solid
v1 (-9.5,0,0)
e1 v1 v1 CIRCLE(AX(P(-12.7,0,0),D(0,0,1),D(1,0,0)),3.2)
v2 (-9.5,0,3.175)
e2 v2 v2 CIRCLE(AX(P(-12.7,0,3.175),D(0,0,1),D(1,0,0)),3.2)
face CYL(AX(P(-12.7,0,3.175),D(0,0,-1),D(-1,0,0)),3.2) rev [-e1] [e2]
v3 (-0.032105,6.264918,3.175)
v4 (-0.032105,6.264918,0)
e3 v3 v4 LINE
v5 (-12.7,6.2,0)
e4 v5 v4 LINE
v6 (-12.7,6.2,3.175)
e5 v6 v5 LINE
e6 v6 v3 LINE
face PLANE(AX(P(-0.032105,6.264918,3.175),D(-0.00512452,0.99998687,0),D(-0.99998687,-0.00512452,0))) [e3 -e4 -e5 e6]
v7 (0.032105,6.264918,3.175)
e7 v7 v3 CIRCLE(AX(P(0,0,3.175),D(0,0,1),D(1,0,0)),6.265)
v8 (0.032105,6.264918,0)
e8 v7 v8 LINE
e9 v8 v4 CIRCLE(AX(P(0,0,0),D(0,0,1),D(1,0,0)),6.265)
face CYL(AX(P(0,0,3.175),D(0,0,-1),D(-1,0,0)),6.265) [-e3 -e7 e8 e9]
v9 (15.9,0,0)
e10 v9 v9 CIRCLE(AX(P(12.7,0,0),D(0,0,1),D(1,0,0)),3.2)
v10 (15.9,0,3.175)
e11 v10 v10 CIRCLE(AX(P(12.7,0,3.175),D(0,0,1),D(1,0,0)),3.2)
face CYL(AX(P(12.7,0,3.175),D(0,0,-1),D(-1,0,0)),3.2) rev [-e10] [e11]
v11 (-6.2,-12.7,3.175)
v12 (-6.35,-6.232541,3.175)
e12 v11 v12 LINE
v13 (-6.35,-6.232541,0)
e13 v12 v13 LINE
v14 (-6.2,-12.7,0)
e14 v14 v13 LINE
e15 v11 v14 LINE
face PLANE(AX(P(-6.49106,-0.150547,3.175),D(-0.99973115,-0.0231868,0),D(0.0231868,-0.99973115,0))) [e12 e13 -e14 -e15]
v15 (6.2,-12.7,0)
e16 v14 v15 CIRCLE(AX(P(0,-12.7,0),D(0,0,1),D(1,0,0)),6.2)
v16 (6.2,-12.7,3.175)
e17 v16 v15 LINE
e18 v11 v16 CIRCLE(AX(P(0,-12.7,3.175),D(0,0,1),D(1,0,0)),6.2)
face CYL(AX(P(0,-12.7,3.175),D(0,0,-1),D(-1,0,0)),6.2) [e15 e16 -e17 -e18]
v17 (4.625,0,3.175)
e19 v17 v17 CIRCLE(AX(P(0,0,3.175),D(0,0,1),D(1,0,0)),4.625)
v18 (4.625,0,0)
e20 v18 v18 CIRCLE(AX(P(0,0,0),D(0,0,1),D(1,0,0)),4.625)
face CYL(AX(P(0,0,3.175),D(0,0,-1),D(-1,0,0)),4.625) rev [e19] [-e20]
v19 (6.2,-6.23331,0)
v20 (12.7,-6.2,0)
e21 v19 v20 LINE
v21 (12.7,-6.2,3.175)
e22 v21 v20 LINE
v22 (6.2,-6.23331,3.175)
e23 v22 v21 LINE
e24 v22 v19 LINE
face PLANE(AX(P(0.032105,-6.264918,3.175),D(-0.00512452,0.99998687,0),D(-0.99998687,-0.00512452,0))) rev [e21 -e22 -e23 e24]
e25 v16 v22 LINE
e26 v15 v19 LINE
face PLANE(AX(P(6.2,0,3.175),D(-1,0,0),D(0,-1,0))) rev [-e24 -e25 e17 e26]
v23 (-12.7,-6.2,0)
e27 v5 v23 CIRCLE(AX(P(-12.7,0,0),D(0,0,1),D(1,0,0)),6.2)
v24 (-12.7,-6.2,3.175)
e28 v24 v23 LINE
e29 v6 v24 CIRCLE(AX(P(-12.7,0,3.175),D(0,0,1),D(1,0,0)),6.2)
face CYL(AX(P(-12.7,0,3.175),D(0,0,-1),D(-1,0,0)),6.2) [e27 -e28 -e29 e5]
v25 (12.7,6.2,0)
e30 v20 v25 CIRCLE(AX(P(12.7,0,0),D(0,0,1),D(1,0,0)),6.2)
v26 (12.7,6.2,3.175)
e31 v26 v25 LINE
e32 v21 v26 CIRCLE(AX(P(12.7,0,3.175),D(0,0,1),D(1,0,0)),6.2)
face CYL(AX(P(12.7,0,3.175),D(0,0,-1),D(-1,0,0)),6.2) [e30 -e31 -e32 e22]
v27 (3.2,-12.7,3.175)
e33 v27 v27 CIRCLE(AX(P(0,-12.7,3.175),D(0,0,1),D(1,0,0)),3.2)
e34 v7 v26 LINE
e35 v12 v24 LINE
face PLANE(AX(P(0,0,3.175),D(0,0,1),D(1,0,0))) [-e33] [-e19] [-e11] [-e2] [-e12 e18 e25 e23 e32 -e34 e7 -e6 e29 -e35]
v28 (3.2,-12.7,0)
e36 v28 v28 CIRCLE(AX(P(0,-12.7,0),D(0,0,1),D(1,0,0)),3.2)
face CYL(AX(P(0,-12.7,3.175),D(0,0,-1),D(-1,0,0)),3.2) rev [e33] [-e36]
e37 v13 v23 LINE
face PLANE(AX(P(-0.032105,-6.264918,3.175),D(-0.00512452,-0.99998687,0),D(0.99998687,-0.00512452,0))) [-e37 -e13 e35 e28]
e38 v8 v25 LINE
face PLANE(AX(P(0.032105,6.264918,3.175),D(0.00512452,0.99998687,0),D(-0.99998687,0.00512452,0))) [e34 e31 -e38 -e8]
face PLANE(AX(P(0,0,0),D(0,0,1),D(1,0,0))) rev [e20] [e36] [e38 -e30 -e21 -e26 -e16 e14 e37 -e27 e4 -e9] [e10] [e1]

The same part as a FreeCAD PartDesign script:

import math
import FreeCAD as App
import Part
import Sketcher
from FreeCAD import Vector

doc = App.newDocument("Part")
params = doc.addObject("Spreadsheet::Sheet", "Params")
for row, (alias, value) in enumerate([
    ("sketch1_diameter", "6.4 mm"),
    ("sketch1_radius", "6.2 mm"),
    ("sketch1_diameter2", "9.25 mm"),
    ("pad1_length", "3.175 mm"),
], start=1):
    params.set(f"A{row}", alias)
    params.set(f"B{row}", "=" + value)
    params.setAlias(f"B{row}", alias)

body = doc.addObject("PartDesign::Body", "Body")

# Sketch on XY plane
sketch1 = body.newObject("Sketcher::SketchObject", "Sketch")
sketch1.AttachmentSupport = (doc.getObject("XY_Plane"), [""])
sketch1.MapMode = "FlatFace"
sketch1.addGeometry([
    Part.LineSegment(Vector(0, 6.3, 0), Vector(-12.7, 6.2, 0)),  # 0
    Part.ArcOfCircle(Part.Circle(Vector(-12.7, 0, 0), Vector(0, 0, 1), 6.2), math.radians(90), math.radians(270)),  # 1
    Part.LineSegment(Vector(-12.7, -6.2, 0), Vector(-6.3, -6.2, 0)),  # 2
    Part.LineSegment(Vector(-6.3, -6.2, 0), Vector(-6.2, -12.7, 0)),  # 3
    Part.ArcOfCircle(Part.Circle(Vector(0, -12.7, 0), Vector(0, 0, 1), 6.2), math.radians(180), math.radians(360)),  # 4
    Part.LineSegment(Vector(6.2, -12.7, 0), Vector(6.2, -6.2, 0)),  # 5
    Part.LineSegment(Vector(6.2, -6.2, 0), Vector(12.7, -6.2, 0)),  # 6
    Part.ArcOfCircle(Part.Circle(Vector(12.7, 0, 0), Vector(0, 0, 1), 6.2), math.radians(-90), math.radians(90)),  # 7
    Part.LineSegment(Vector(12.7, 6.2, 0), Vector(0, 6.3, 0)),  # 8
    Part.Circle(Vector(0, -12.7, 0), Vector(0, 0, 1), 3.2),  # 9
    Part.Circle(Vector(-12.7, 0, 0), Vector(0, 0, 1), 3.2),  # 10
    Part.Circle(Vector(0, 0, 0), Vector(0, 0, 1), 4.6),  # 11
    Part.Circle(Vector(12.7, 0, 0), Vector(0, 0, 1), 3.2),  # 12
], False)
sketch1.addConstraint([
    Sketcher.Constraint("Coincident", 0, 2, 1, 1),
    Sketcher.Constraint("Coincident", 1, 2, 2, 1),
    Sketcher.Constraint("Coincident", 2, 2, 3, 1),
    Sketcher.Constraint("Coincident", 3, 2, 4, 1),
    Sketcher.Constraint("Tangent", 4, 2, 5, 1),
    Sketcher.Constraint("Coincident", 5, 2, 6, 1),
    Sketcher.Constraint("Coincident", 6, 2, 7, 1),
    Sketcher.Constraint("Coincident", 7, 2, 8, 1),
    Sketcher.Constraint("Coincident", 8, 2, 0, 1),
    Sketcher.Constraint("Vertical", 5),
    Sketcher.Constraint("Coincident", 11, 3, -1, 1),
    Sketcher.Constraint("Coincident", 9, 3, 4, 3),
    Sketcher.Constraint("Coincident", 10, 3, 1, 3),
    Sketcher.Constraint("Coincident", 12, 3, 7, 3),
    Sketcher.Constraint("Equal", 1, 4),
    Sketcher.Constraint("Equal", 4, 7),
    Sketcher.Constraint("Equal", 9, 10),
    Sketcher.Constraint("Equal", 10, 12),
    Sketcher.Constraint("Symmetric", 1, 3, 7, 3, -1, 1),
    Sketcher.Constraint("Symmetric", 3, 2, 4, 2, -2),
    Sketcher.Constraint("Symmetric", 1, 2, 6, 2, -2),
    Sketcher.Constraint("PointOnObject", 8, 2, -2),
    Sketcher.Constraint("Parallel", 0, 6),
    Sketcher.Constraint("Parallel", 2, 8),
    Sketcher.Constraint("Vertical", 10, 3, 0, 2),
    Sketcher.Constraint("Vertical", 0, 2, 1, 2),
    Sketcher.Constraint("Vertical", 6, 2, 7, 2),
    Sketcher.Constraint("Diameter", 9, 6.4),
    Sketcher.Constraint("Radius", 1, 6.2),
    Sketcher.Constraint("Diameter", 11, 9.25),
    Sketcher.Constraint("DistanceX", 1, 3, -1, 1, 12.7),
    Sketcher.Constraint("DistanceY", 4, 3, -1, 1, 12.7),
    Sketcher.Constraint("DistanceX", 2, 2, -1, 1, 6.35),
    Sketcher.Constraint("Distance", 3, 6.469198),
])
sketch1.setExpression("Constraints[27]", "Params.sketch1_diameter")
sketch1.setExpression("Constraints[28]", "Params.sketch1_radius")
sketch1.setExpression("Constraints[29]", "Params.sketch1_diameter2")
pad1 = body.newObject("PartDesign::Pad", "Pad")
pad1.Profile = sketch1
pad1.setExpression("Length", "Params.pad1_length")

doc.recompute()
